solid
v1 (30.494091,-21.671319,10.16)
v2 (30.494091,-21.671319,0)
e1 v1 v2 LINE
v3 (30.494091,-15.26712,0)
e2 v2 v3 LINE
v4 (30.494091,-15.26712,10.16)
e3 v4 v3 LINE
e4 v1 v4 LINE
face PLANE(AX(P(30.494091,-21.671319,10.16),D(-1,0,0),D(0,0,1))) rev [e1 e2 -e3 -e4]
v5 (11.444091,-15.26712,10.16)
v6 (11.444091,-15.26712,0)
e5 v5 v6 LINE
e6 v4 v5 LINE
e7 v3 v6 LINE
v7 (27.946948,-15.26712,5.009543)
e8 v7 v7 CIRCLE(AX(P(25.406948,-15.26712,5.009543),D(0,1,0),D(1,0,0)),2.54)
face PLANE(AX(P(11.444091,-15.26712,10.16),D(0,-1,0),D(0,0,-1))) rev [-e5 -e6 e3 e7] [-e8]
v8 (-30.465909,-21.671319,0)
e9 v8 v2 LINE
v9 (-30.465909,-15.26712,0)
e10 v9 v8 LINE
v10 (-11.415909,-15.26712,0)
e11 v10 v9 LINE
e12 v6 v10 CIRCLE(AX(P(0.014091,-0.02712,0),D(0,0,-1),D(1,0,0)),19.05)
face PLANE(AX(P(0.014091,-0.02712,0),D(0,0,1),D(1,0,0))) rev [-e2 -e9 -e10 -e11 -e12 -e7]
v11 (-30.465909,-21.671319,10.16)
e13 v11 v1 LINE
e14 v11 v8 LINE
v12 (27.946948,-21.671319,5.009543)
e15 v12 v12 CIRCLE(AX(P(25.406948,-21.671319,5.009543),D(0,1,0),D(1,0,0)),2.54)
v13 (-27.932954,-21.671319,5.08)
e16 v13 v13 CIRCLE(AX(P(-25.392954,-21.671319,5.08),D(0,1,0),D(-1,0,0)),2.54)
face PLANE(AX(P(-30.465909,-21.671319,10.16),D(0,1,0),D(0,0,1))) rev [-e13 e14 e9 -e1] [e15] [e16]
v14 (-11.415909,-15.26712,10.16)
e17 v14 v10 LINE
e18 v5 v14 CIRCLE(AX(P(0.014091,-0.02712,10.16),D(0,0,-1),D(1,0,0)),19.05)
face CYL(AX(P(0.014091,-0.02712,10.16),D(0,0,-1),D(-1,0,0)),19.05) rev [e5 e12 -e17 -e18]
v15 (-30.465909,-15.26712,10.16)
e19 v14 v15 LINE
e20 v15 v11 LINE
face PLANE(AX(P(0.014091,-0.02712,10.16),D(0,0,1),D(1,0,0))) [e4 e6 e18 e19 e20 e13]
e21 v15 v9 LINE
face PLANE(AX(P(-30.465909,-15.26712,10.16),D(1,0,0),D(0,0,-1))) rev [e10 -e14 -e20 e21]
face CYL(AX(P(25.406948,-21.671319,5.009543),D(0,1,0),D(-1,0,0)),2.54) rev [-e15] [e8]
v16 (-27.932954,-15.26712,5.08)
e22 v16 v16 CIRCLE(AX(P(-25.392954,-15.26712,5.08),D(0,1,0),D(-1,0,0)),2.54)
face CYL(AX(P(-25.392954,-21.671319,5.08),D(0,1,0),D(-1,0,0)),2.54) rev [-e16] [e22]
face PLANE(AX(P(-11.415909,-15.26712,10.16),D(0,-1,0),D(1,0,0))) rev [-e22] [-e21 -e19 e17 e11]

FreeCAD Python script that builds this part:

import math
import FreeCAD as App
import Part
import Sketcher

V = App.Vector
Q = App.Units.Quantity

doc = App.newDocument("Part")
body = doc.addObject("PartDesign::Body", "Body")

sketch1 = doc.addObject("Sketcher::SketchObject", "Sketch")
body.addObject(sketch1)
sketch1.AttachmentSupport = (doc.XY_Plane, [""])
sketch1.MapMode = "FlatFace"
sketch1.addGeometry(Part.LineSegment(V(-11, -15, 0), V(-30, -15, 0)), False)
sketch1.addGeometry(Part.LineSegment(V(-30, -15, 0), V(-30, -22, 0)), False)
sketch1.addGeometry(Part.LineSegment(V(-30, -22, 0), V(30, -22, 0)), False)
sketch1.addGeometry(Part.LineSegment(V(30, -22, 0), V(30, -15, 0)), False)
sketch1.addGeometry(Part.LineSegment(V(30, -15, 0), V(11, -15, 0)), False)
sketch1.addGeometry(Part.ArcOfCircle(Part.Circle(V(0, 0, 0), V(0, 0, 1), 19), math.radians(-127), math.radians(-53)), False)
sketch1.addConstraint(Sketcher.Constraint("Coincident", 0, 2, 1, 1))
sketch1.addConstraint(Sketcher.Constraint("Coincident", 1, 2, 2, 1))
sketch1.addConstraint(Sketcher.Constraint("Coincident", 2, 2, 3, 1))
sketch1.addConstraint(Sketcher.Constraint("Coincident", 3, 2, 4, 1))
sketch1.addConstraint(Sketcher.Constraint("Coincident", 4, 2, 5, 2))
sketch1.addConstraint(Sketcher.Constraint("Coincident", 5, 1, 0, 1))
sketch1.addConstraint(Sketcher.Constraint("Horizontal", 0))
sketch1.addConstraint(Sketcher.Constraint("Vertical", 1))
sketch1.addConstraint(Sketcher.Constraint("Horizontal", 2))
sketch1.addConstraint(Sketcher.Constraint("Vertical", 3))
sketch1.addConstraint(Sketcher.Constraint("Horizontal", 4))
sketch1.addConstraint(Sketcher.Constraint("Horizontal", 0, 2, 3, 2))
sketch1.addConstraint(Sketcher.Constraint("Equal", 0, 4))
sketch1.addConstraint(Sketcher.Constraint("Radius", 5, Q("0.75 in")))
sketch1.addConstraint(Sketcher.Constraint("DistanceX", 2, 1, 2, 2, Q("2.4 in")))
sketch1.addConstraint(Sketcher.Constraint("DistanceX", 0, 2, 0, 1, Q("0.75 in")))
sketch1.addConstraint(Sketcher.Constraint("DistanceY", 1, 2, 1, 1, Q("6.404199 mm")))
sketch1.addConstraint(Sketcher.Constraint("DistanceX", -1, 1, 5, 3, Q("0.014091 mm")))
sketch1.addConstraint(Sketcher.Constraint("DistanceY", 5, 3, -1, 1, Q("0.02712 mm")))
pad1 = doc.addObject("PartDesign::Pad", "Pad")
body.addObject(pad1)
pad1.Profile = sketch1
pad1.Length = Q("0.4 in")

sketch2 = doc.addObject("Sketcher::SketchObject", "Sketch001")
body.addObject(sketch2)
sketch2.AttachmentSupport = (doc.XZ_Plane, [""])
sketch2.MapMode = "FlatFace"
sketch2.AttachmentOffset = App.Placement(V(0, 0, 15.26712), App.Rotation())
sketch2.addGeometry(Part.Circle(V(-25.4, 5.1, 0), V(0, 0, 1), 2.5), False)
sketch2.addGeometry(Part.Circle(V(25.4, 5, 0), V(0, 0, 1), 2.5), False)
sketch2.addConstraint(Sketcher.Constraint("Equal", 0, 1))
sketch2.addConstraint(Sketcher.Constraint("Diameter", 0, Q("0.2 in")))
sketch2.addConstraint(Sketcher.Constraint("DistanceY", -1, 1, 0, 3, Q("0.2 in")))
sketch2.addConstraint(Sketcher.Constraint("DistanceX", 0, 3, -1, 1, Q("25.392954 mm")))
sketch2.addConstraint(Sketcher.Constraint("DistanceX", -1, 1, 1, 3, Q("25.406948 mm")))
sketch2.addConstraint(Sketcher.Constraint("DistanceY", -1, 1, 1, 3, Q("5.009543 mm")))
pocket1 = doc.addObject("PartDesign::Pocket", "Pocket")
body.addObject(pocket1)
pocket1.Profile = sketch2
pocket1.Type = "ThroughAll"
pocket1.Reversed = True

doc.recompute()
